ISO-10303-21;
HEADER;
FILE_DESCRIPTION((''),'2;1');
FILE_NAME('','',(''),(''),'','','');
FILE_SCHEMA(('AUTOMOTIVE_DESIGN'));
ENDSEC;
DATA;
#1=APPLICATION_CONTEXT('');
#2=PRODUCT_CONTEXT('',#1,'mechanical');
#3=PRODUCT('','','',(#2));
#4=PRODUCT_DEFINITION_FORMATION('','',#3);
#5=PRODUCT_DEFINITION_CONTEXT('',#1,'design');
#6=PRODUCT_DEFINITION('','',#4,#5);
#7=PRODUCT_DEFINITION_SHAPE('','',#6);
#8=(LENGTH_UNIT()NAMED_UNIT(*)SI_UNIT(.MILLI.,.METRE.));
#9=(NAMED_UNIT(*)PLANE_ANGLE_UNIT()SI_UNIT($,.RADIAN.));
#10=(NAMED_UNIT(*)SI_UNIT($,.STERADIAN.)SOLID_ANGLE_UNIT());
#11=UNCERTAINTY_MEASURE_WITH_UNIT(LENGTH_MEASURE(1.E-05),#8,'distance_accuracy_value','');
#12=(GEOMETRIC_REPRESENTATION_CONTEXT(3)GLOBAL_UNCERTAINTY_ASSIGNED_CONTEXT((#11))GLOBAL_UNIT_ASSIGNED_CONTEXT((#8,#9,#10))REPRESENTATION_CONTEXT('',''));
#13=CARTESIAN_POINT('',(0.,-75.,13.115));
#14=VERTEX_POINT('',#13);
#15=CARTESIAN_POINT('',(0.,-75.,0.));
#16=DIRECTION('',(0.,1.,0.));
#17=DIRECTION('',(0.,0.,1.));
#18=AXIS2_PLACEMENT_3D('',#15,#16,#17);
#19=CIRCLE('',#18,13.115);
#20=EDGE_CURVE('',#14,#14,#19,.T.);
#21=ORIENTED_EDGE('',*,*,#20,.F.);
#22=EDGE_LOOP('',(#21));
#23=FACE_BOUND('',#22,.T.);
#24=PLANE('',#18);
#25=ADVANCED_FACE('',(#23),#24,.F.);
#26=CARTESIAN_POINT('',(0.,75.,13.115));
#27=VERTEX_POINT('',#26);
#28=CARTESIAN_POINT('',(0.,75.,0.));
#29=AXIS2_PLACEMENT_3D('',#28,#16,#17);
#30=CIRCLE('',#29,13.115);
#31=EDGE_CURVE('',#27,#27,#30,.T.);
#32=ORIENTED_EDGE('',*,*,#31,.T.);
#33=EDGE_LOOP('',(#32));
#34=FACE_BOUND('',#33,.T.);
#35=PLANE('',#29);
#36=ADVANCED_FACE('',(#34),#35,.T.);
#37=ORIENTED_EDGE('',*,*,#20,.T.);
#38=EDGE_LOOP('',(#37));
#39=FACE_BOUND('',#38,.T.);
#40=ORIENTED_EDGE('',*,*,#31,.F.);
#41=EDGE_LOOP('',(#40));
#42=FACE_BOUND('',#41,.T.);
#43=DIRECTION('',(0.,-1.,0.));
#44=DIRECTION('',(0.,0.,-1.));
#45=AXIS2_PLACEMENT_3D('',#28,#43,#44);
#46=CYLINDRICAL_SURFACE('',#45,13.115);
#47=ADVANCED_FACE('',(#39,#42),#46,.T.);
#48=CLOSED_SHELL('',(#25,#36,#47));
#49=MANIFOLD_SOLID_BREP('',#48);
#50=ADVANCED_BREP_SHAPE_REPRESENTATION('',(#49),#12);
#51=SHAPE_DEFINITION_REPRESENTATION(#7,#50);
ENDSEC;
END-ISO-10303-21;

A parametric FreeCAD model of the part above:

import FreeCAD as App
import Part
import Sketcher
from FreeCAD import Vector

doc = App.newDocument("Part")
body = doc.addObject("PartDesign::Body", "Body")

# Sketch on XZ plane
sketch1 = doc.addObject("Sketcher::SketchObject", "Sketch")
body.addObject(sketch1)
sketch1.AttachmentSupport = (doc.XZ_Plane, [""])
sketch1.MapMode = "FlatFace"
sketch1.addGeometry(Part.Circle(Vector(0, 0, 0), Vector(0, 0, 1), 13), False)
sketch1.addConstraint(Sketcher.Constraint("Coincident", 0, 3, -1, 1))
sketch1.addConstraint(Sketcher.Constraint("Diameter", 0, 26.23))
pad1 = doc.addObject("PartDesign::Pad", "Pad")
body.addObject(pad1)
pad1.Profile = sketch1
pad1.Length = 150
pad1.Midplane = True

doc.recompute()
